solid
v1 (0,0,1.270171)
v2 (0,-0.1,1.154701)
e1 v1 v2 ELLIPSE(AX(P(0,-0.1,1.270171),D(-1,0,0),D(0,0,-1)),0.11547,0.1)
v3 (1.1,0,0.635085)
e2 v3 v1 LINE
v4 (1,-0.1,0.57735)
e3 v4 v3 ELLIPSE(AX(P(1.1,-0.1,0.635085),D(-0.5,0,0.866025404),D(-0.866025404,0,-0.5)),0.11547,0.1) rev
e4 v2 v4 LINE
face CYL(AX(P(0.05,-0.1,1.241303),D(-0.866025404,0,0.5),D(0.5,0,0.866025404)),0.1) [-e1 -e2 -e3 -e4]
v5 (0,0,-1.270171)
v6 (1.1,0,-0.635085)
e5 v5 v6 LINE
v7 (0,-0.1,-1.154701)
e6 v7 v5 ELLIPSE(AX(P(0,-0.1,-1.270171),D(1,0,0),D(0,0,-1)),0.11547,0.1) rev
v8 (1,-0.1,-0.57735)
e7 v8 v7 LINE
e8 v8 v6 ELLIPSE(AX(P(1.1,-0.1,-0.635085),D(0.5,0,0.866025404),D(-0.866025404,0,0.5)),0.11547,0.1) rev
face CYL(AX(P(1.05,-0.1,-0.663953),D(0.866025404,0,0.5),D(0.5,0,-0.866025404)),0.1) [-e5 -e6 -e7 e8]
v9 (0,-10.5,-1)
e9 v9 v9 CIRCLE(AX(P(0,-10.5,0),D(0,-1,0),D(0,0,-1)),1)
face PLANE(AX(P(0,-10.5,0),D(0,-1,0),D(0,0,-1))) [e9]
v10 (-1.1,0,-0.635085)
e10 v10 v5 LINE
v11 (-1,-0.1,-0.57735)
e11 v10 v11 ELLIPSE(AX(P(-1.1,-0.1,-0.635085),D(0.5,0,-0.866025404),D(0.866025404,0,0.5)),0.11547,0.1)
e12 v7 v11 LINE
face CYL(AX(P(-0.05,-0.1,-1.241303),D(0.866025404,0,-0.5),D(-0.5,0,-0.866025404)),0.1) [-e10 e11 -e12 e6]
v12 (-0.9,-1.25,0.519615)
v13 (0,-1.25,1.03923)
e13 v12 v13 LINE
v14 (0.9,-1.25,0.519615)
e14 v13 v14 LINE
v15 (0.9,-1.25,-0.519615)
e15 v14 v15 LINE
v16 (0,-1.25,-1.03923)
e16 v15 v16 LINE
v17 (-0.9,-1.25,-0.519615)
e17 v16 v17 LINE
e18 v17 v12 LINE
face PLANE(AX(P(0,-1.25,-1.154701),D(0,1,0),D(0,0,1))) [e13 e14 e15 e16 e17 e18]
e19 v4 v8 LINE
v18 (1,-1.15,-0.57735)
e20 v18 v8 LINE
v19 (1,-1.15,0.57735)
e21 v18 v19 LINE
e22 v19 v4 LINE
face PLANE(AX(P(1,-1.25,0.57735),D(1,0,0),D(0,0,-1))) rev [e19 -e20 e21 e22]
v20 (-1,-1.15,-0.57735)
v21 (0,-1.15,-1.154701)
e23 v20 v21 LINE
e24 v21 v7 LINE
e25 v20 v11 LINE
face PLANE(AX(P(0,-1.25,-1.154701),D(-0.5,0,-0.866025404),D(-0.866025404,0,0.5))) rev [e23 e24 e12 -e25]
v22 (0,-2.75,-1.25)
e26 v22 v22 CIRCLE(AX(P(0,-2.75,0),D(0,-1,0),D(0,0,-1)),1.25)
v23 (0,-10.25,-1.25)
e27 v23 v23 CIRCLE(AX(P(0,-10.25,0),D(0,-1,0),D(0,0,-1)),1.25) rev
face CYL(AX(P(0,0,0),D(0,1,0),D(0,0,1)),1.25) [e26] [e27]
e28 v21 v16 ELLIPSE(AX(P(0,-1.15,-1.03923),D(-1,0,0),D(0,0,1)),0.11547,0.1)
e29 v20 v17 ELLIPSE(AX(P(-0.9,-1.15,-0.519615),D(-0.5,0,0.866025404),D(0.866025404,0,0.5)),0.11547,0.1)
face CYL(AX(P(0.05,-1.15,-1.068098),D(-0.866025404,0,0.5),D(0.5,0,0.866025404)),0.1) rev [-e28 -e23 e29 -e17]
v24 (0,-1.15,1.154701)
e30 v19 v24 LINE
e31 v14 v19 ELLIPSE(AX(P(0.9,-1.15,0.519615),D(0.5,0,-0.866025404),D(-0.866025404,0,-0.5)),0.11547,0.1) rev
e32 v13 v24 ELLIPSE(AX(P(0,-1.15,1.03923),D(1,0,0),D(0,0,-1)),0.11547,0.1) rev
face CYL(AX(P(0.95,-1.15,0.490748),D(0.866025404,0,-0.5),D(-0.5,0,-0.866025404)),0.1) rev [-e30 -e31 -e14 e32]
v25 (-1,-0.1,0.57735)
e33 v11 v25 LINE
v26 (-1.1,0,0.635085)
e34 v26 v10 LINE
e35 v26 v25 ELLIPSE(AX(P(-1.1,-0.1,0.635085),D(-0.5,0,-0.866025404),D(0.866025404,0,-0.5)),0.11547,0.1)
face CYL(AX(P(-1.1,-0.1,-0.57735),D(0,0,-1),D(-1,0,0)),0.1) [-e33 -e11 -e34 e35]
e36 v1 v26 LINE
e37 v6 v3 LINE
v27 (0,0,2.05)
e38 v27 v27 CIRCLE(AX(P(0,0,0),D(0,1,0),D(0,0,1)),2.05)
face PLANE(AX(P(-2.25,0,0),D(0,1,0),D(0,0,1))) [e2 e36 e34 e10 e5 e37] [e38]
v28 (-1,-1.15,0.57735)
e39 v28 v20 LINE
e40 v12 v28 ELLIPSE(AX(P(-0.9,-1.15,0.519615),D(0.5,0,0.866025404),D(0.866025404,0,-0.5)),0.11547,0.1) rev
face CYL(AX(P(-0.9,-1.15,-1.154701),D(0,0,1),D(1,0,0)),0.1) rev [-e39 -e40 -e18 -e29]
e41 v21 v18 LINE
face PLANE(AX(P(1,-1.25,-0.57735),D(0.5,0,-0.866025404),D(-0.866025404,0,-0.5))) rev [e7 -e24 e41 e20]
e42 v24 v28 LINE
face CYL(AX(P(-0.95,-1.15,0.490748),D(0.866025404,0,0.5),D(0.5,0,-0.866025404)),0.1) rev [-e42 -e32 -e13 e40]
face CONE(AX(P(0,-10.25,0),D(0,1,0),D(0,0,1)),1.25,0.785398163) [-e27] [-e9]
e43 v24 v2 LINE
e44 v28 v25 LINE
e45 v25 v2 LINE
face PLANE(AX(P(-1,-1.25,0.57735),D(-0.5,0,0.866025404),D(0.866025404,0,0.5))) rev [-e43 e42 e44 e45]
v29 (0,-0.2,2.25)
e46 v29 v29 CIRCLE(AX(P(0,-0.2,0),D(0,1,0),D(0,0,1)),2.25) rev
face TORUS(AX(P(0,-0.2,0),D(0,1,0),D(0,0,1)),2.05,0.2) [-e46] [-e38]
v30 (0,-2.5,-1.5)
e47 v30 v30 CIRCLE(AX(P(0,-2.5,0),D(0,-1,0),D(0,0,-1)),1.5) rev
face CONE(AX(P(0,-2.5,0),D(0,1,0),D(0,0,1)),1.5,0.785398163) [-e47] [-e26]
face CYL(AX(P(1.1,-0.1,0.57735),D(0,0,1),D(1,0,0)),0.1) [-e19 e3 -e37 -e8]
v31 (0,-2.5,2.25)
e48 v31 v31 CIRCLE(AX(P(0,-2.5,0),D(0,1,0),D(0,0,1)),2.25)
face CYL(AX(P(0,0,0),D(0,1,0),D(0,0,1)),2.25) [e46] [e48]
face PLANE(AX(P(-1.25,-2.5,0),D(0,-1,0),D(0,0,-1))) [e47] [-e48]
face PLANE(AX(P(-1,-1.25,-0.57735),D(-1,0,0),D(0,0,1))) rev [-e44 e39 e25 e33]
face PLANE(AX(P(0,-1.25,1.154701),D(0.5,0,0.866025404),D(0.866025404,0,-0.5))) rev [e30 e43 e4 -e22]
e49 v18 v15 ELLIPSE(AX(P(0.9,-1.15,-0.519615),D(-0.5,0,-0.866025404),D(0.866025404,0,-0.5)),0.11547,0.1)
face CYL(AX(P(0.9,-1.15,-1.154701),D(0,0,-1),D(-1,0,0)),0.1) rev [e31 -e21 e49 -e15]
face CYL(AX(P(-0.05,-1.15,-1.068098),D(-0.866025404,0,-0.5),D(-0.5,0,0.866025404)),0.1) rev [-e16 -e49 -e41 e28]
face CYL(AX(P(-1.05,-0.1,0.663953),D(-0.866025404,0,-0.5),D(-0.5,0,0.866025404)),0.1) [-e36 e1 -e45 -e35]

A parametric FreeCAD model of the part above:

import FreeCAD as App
import Part
import Sketcher
from FreeCAD import Vector
Q = App.Units.Quantity


def edges_at(feature, points):
    """Names of the edges that pass closest to the given points."""
    edges = feature.Shape.Edges
    near = lambda p: min(range(len(edges)), key=lambda i: edges[i].distToShape(Part.Vertex(*p))[0])
    return sorted({f"Edge{near(p) + 1}" for p in points})

doc = App.newDocument("Part")
body = doc.addObject("PartDesign::Body", "Body")

sketch1 = body.newObject("Sketcher::SketchObject", "Sketch")
sketch1.AttachmentSupport = (doc.getObject("XY_Plane"), [""])
sketch1.MapMode = "FlatFace"
sketch1.addGeometry([
    Part.LineSegment(Vector(-1.2, -10.5, 0), Vector(0, -10.5, 0)),
    Part.LineSegment(Vector(0, -10.5, 0), Vector(0, 0, 0)),
    Part.LineSegment(Vector(0, 0, 0), Vector(-2.2, 0, 0)),
    Part.LineSegment(Vector(-2.2, 0, 0), Vector(-2.2, -2.5, 0)),
    Part.LineSegment(Vector(-2.2, -2.5, 0), Vector(-1.2, -2.5, 0)),
    Part.LineSegment(Vector(-1.2, -2.5, 0), Vector(-1.2, -10.5, 0)),
], False)
sketch1.addConstraint([
    Sketcher.Constraint("Coincident", 0, 2, 1, 1),
    Sketcher.Constraint("Coincident", 1, 2, 2, 1),
    Sketcher.Constraint("Coincident", 2, 2, 3, 1),
    Sketcher.Constraint("Coincident", 3, 2, 4, 1),
    Sketcher.Constraint("Coincident", 4, 2, 5, 1),
    Sketcher.Constraint("Coincident", 5, 2, 0, 1),
    Sketcher.Constraint("Horizontal", 0),
    Sketcher.Constraint("Vertical", 1),
    Sketcher.Constraint("Horizontal", 2),
    Sketcher.Constraint("Vertical", 3),
    Sketcher.Constraint("Horizontal", 4),
    Sketcher.Constraint("Vertical", 5),
    Sketcher.Constraint("Coincident", 1, 2, -1, 1),
    Sketcher.Constraint("DistanceX", 4, 1, 4, 2, Q("1 mm")),
    Sketcher.Constraint("DistanceY", 5, 2, 5, 1, Q("8 mm")),
    Sketcher.Constraint("DistanceY", 1, 1, 1, 2, Q("10.5 mm")),
    Sketcher.Constraint("DistanceX", 0, 1, 0, 2, Q("1.25 mm")),
])
revolution = body.newObject("PartDesign::Revolution", "Revolution")
revolution.Profile = sketch1
revolution.ReferenceAxis = (sketch1, ["V_Axis"])
revolution.Angle = 360
doc.recompute()

chamfer = body.newObject("PartDesign::Chamfer", "Chamfer")
chamfer.Base = (revolution, edges_at(revolution, [(0, -2.5, -1.25), (0, -10.5, -1.25)]))
chamfer.Size = 0.25
doc.recompute()

fillet = body.newObject("PartDesign::Fillet", "Fillet")
fillet.Base = (chamfer, edges_at(chamfer, [(0, 0, -2.25)]))
fillet.Radius = 0.2

sketch2 = body.newObject("Sketcher::SketchObject", "Sketch001")
sketch2.AttachmentSupport = (doc.getObject("XZ_Plane"), [""])
sketch2.MapMode = "FlatFace"
sketch2.addGeometry([
    Part.LineSegment(Vector(0, -1.2, 0), Vector(-1, -0.6, 0)),
    Part.LineSegment(Vector(-1, -0.6, 0), Vector(-1, 0.6, 0)),
    Part.LineSegment(Vector(-1, 0.6, 0), Vector(0, 1.2, 0)),
    Part.LineSegment(Vector(0, 1.2, 0), Vector(1, 0.6, 0)),
    Part.LineSegment(Vector(1, 0.6, 0), Vector(1, -0.6, 0)),
    Part.LineSegment(Vector(1, -0.6, 0), Vector(0, -1.2, 0)),
], False)
sketch2.addConstraint([
    Sketcher.Constraint("Coincident", 0, 2, 1, 1),
    Sketcher.Constraint("Coincident", 1, 2, 2, 1),
    Sketcher.Constraint("Coincident", 2, 2, 3, 1),
    Sketcher.Constraint("Coincident", 3, 2, 4, 1),
    Sketcher.Constraint("Coincident", 4, 2, 5, 1),
    Sketcher.Constraint("Coincident", 5, 2, 0, 1),
    Sketcher.Constraint("Vertical", 1),
    Sketcher.Constraint("Vertical", 4),
    Sketcher.Constraint("Symmetric", 0, 2, 3, 2, -1, 1),
    Sketcher.Constraint("Symmetric", 2, 2, 5, 2, -1, 1),
    Sketcher.Constraint("PointOnObject", 2, 2, -2),
    Sketcher.Constraint("Parallel", 2, 5),
    Sketcher.Constraint("Horizontal", 1, 2, 3, 2),
    Sketcher.Constraint("Angle", 0, Q("150 deg")),
    Sketcher.Constraint("DistanceX", 0, 2, -1, 1, Q("1 mm")),
    Sketcher.Constraint("DistanceY", 1, 1, 1, 2, Q("1.154701 mm")),
])
pocket1 = body.newObject("PartDesign::Pocket", "Pocket")
pocket1.Profile = sketch2
pocket1.Length = 1.25
pocket1.Reversed = True
doc.recompute()

fillet2 = body.newObject("PartDesign::Fillet", "Fillet001")
fillet2.Base = (pocket1, edges_at(pocket1, [
    (0.5, -1.25, -0.866),
    (1, -1.25, 0),
    (0.5, -1.25, 0.866),
    (-0.5, -1.25, 0.866),
    (-1, -1.25, 0),
    (-0.5, -1.25, -0.866),
    (0.5, 0, -0.866),
    (-0.5, 0, -0.866),
    (-1, 0, 0),
    (-0.5, 0, 0.866),
    (0.5, 0, 0.866),
    (1, 0, 0),
]))
fillet2.Radius = 0.1

doc.recompute()
